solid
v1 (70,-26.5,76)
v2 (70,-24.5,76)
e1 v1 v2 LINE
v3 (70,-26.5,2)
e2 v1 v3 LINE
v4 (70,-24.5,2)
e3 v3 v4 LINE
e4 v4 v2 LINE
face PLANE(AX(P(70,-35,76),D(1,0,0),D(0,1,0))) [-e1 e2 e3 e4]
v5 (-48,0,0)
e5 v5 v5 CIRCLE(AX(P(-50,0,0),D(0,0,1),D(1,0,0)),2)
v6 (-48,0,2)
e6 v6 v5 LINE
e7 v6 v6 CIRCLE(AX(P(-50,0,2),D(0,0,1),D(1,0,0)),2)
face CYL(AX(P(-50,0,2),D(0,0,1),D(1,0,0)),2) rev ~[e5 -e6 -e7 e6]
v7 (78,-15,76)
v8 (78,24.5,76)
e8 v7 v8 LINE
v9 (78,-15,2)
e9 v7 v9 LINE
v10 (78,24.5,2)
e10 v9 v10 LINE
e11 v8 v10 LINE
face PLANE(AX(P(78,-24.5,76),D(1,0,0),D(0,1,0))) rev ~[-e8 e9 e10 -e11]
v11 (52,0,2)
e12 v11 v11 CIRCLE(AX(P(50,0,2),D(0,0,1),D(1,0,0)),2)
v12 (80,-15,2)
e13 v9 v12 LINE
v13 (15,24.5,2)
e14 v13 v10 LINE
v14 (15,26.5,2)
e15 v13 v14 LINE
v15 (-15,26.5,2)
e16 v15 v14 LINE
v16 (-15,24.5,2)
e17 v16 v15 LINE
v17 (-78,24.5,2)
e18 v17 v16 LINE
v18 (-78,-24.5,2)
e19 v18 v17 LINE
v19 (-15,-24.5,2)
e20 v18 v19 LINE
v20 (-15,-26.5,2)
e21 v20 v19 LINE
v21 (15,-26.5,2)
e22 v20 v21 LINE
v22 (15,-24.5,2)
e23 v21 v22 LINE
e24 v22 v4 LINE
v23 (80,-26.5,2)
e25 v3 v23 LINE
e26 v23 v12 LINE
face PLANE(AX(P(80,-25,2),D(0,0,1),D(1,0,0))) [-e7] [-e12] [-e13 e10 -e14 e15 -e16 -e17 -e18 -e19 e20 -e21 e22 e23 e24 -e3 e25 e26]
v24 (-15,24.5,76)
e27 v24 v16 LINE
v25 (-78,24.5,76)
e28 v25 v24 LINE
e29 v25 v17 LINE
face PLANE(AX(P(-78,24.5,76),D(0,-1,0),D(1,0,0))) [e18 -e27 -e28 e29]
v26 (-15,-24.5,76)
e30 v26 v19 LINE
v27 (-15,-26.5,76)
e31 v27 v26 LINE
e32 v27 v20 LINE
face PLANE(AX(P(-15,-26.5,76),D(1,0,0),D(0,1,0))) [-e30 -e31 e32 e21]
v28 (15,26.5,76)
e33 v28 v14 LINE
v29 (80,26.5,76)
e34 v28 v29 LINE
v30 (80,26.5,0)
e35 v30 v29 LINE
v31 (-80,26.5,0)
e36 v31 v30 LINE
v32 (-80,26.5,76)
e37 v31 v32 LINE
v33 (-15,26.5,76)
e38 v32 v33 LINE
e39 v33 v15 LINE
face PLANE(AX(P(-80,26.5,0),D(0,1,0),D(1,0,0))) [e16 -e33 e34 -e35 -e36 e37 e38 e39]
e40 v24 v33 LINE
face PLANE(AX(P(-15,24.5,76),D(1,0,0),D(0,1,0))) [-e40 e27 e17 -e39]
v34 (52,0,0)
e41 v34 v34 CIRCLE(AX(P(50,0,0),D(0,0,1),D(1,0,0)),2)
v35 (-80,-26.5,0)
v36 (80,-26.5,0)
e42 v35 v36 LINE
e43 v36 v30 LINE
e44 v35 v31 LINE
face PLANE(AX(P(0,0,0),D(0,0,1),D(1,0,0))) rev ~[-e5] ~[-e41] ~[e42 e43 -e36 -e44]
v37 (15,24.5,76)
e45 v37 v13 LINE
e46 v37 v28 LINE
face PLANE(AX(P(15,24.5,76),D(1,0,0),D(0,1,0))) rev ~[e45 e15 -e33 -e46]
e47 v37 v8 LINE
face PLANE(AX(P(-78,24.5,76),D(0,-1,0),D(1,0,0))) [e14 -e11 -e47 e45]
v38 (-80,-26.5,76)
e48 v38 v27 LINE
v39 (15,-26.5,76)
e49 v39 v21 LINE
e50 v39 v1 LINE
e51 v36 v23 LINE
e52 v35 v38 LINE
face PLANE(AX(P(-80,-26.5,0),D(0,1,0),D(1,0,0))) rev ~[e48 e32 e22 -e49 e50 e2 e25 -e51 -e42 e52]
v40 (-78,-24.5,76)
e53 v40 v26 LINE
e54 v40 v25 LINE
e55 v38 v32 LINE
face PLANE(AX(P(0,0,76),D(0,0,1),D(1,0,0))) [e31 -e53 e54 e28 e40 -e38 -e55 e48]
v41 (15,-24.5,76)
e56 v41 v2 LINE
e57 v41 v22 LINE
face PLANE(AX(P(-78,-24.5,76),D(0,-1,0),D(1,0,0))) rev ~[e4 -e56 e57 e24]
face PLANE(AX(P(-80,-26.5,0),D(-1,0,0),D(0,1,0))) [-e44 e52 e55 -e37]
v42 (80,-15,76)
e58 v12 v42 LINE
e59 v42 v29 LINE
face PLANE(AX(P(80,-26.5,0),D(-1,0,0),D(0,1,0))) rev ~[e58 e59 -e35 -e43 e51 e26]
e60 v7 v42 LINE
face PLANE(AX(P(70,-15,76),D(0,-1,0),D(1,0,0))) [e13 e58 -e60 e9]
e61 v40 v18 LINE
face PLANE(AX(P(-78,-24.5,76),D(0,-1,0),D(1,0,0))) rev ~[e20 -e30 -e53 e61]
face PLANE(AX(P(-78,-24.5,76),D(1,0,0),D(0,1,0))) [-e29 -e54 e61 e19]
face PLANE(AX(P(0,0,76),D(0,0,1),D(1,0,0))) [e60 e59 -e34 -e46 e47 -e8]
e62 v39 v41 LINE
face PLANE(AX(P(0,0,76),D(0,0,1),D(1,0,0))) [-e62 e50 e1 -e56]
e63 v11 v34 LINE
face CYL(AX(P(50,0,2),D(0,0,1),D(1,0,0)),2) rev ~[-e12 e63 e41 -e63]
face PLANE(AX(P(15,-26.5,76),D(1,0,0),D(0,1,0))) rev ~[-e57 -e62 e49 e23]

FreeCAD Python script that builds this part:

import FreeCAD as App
import Part
import Sketcher
Q = App.Units.Quantity

doc = App.newDocument("Part")
body = doc.addObject("PartDesign::Body", "Body")

# Sketch on XY plane
sketch1 = doc.addObject("Sketcher::SketchObject", "Sketch")
body.addObject(sketch1)
sketch1.AttachmentSupport = (doc.XY_Plane, [""])
sketch1.MapMode = "FlatFace"
sketch1.addGeometry([
    Part.LineSegment(App.Vector(-80, 26, 0), App.Vector(-80, -26, 0)),
    Part.LineSegment(App.Vector(-80, -26, 0), App.Vector(80, -26, 0)),
    Part.LineSegment(App.Vector(80, -26, 0), App.Vector(80, 26, 0)),
    Part.LineSegment(App.Vector(80, 26, 0), App.Vector(-80, 26, 0)),
], False)
sketch1.addConstraint([
    Sketcher.Constraint("Coincident", 0, 2, 1, 1),
    Sketcher.Constraint("Coincident", 1, 2, 2, 1),
    Sketcher.Constraint("Coincident", 2, 2, 3, 1),
    Sketcher.Constraint("Coincident", 3, 2, 0, 1),
    Sketcher.Constraint("Vertical", 0),
    Sketcher.Constraint("Horizontal", 1),
    Sketcher.Constraint("Vertical", 2),
    Sketcher.Constraint("Horizontal", 3),
    Sketcher.Constraint("Symmetric", 0, 2, 2, 2, -1, 1),
    Sketcher.Constraint("DistanceX", 1, 1, 1, 2, Q("160 mm")),
    Sketcher.Constraint("DistanceY", 0, 2, 0, 1, Q("53 mm")),
])
pad1 = doc.addObject("PartDesign::Pad", "Pad")
body.addObject(pad1)
pad1.Profile = sketch1
pad1.Length = 76

# Sketch on XY plane
sketch2 = doc.addObject("Sketcher::SketchObject", "Sketch001")
body.addObject(sketch2)
sketch2.AttachmentSupport = (doc.XY_Plane, [""])
sketch2.MapMode = "FlatFace"
sketch2.AttachmentOffset = App.Placement(App.Vector(0, 0, 76), App.Rotation())
sketch2.addGeometry([
    Part.LineSegment(App.Vector(-78, 24, 0), App.Vector(-78, -24, 0)),
    Part.LineSegment(App.Vector(-78, -24, 0), App.Vector(78, -24, 0)),
    Part.LineSegment(App.Vector(78, -24, 0), App.Vector(78, 24, 0)),
    Part.LineSegment(App.Vector(78, 24, 0), App.Vector(-78, 24, 0)),
], False)
sketch2.addConstraint([
    Sketcher.Constraint("Coincident", 0, 2, 1, 1),
    Sketcher.Constraint("Coincident", 1, 2, 2, 1),
    Sketcher.Constraint("Coincident", 2, 2, 3, 1),
    Sketcher.Constraint("Coincident", 3, 2, 0, 1),
    Sketcher.Constraint("Vertical", 0),
    Sketcher.Constraint("Horizontal", 1),
    Sketcher.Constraint("Vertical", 2),
    Sketcher.Constraint("Horizontal", 3),
    Sketcher.Constraint("Symmetric", 0, 2, 2, 2, -1, 1),
    Sketcher.Constraint("DistanceX", 1, 1, 1, 2, Q("156 mm")),
    Sketcher.Constraint("DistanceY", 0, 2, 0, 1, Q("49 mm")),
])
pocket1 = doc.addObject("PartDesign::Pocket", "Pocket")
body.addObject(pocket1)
pocket1.Profile = sketch2
pocket1.Length = 74

# Sketch on XY plane
sketch3 = doc.addObject("Sketcher::SketchObject", "Sketch002")
body.addObject(sketch3)
sketch3.AttachmentSupport = (doc.XY_Plane, [""])
sketch3.MapMode = "FlatFace"
sketch3.AttachmentOffset = App.Placement(App.Vector(0, 0, 2), App.Rotation())
sketch3.addGeometry(Part.Circle(App.Vector(50, 0, 0), App.Vector(0, 0, 1), 2), False)
sketch3.addConstraint([
    Sketcher.Constraint("PointOnObject", 0, 3, -1),
    Sketcher.Constraint("Diameter", 0, Q("4 mm")),
    Sketcher.Constraint("DistanceX", -1, 1, 0, 3, Q("50 mm")),
])
pocket2 = doc.addObject("PartDesign::Pocket", "Pocket001")
body.addObject(pocket2)
pocket2.Profile = sketch3
pocket2.Type = "UpToFirst"

# Sketch on XY plane
sketch4 = doc.addObject("Sketcher::SketchObject", "Sketch003")
body.addObject(sketch4)
sketch4.AttachmentSupport = (doc.XY_Plane, [""])
sketch4.MapMode = "FlatFace"
sketch4.AttachmentOffset = App.Placement(App.Vector(0, 0, 2), App.Rotation())
sketch4.addGeometry(Part.Circle(App.Vector(-50, 0, 0), App.Vector(0, 0, 1), 2), False)
sketch4.addConstraint([
    Sketcher.Constraint("PointOnObject", 0, 3, -1),
    Sketcher.Constraint("Diameter", 0, Q("4 mm")),
    Sketcher.Constraint("DistanceX", 0, 3, -1, 1, Q("50 mm")),
])
pocket3 = doc.addObject("PartDesign::Pocket", "Pocket002")
body.addObject(pocket3)
pocket3.Profile = sketch4
pocket3.Type = "UpToFirst"

# Sketch on XY plane
sketch5 = doc.addObject("Sketcher::SketchObject", "Sketch004")
body.addObject(sketch5)
sketch5.AttachmentSupport = (doc.XY_Plane, [""])
sketch5.MapMode = "FlatFace"
sketch5.AttachmentOffset = App.Placement(App.Vector(0, 0, 76), App.Rotation())
sketch5.addGeometry([
    Part.LineSegment(App.Vector(-15, 26.5, 0), App.Vector(-15, 24.5, 0)),  # 0
    Part.LineSegment(App.Vector(-15, 24.5, 0), App.Vector(15, 24.5, 0)),  # 1
    Part.LineSegment(App.Vector(15, 24.5, 0), App.Vector(15, 26.5, 0)),  # 2
    Part.LineSegment(App.Vector(15, 26.5, 0), App.Vector(-15, 26.5, 0)),  # 3
    Part.LineSegment(App.Vector(-15, -24.5, 0), App.Vector(-15, -26.5, 0)),  # 4
    Part.LineSegment(App.Vector(-15, -26.5, 0), App.Vector(15, -26.5, 0)),  # 5
    Part.LineSegment(App.Vector(15, -26.5, 0), App.Vector(15, -24.5, 0)),  # 6
    Part.LineSegment(App.Vector(15, -24.5, 0), App.Vector(-15, -24.5, 0)),  # 7
    Part.LineSegment(App.Vector(70, -15, 0), App.Vector(70, -35, 0)),  # 8
    Part.LineSegment(App.Vector(70, -35, 0), App.Vector(90, -35, 0)),  # 9
    Part.LineSegment(App.Vector(90, -35, 0), App.Vector(90, -15, 0)),  # 10
    Part.LineSegment(App.Vector(90, -15, 0), App.Vector(70, -15, 0)),  # 11
], False)
sketch5.addConstraint([
    Sketcher.Constraint("Coincident", 0, 2, 1, 1),
    Sketcher.Constraint("Coincident", 1, 2, 2, 1),
    Sketcher.Constraint("Coincident", 2, 2, 3, 1),
    Sketcher.Constraint("Coincident", 3, 2, 0, 1),
    Sketcher.Constraint("Coincident", 4, 2, 5, 1),
    Sketcher.Constraint("Coincident", 5, 2, 6, 1),
    Sketcher.Constraint("Coincident", 6, 2, 7, 1),
    Sketcher.Constraint("Coincident", 7, 2, 4, 1),
    Sketcher.Constraint("Coincident", 8, 2, 9, 1),
    Sketcher.Constraint("Coincident", 9, 2, 10, 1),
    Sketcher.Constraint("Coincident", 10, 2, 11, 1),
    Sketcher.Constraint("Coincident", 11, 2, 8, 1),
    Sketcher.Constraint("Vertical", 0),
    Sketcher.Constraint("Horizontal", 1),
    Sketcher.Constraint("Vertical", 2),
    Sketcher.Constraint("Horizontal", 3),
    Sketcher.Constraint("Vertical", 4),
    Sketcher.Constraint("Horizontal", 5),
    Sketcher.Constraint("Vertical", 6),
    Sketcher.Constraint("Horizontal", 7),
    Sketcher.Constraint("Vertical", 8),
    Sketcher.Constraint("Horizontal", 9),
    Sketcher.Constraint("Vertical", 10),
    Sketcher.Constraint("Horizontal", 11),
    Sketcher.Constraint("Symmetric", 2, 2, 4, 2, -1, 1),
    Sketcher.Constraint("Symmetric", 0, 2, 6, 2, -1, 1),
    Sketcher.Constraint("Vertical", 3, 2, 4, 2),
    Sketcher.Constraint("Equal", 11, 8),
    Sketcher.Constraint("DistanceX", 1, 1, 1, 2, Q("30 mm")),
    Sketcher.Constraint("DistanceX", 9, 1, 9, 2, Q("20 mm")),
    Sketcher.Constraint("DistanceY", 0, 2, 0, 1, Q("2 mm")),
    Sketcher.Constraint("DistanceX", -1, 1, 8, 2, Q("70 mm")),
    Sketcher.Constraint("DistanceY", 8, 2, -1, 1, Q("35 mm")),
    Sketcher.Constraint("DistanceY", 4, 2, 0, 2, Q("51 mm")),
])
pocket4 = doc.addObject("PartDesign::Pocket", "Pocket003")
body.addObject(pocket4)
pocket4.Profile = sketch5
pocket4.Length = 74

doc.recompute()
